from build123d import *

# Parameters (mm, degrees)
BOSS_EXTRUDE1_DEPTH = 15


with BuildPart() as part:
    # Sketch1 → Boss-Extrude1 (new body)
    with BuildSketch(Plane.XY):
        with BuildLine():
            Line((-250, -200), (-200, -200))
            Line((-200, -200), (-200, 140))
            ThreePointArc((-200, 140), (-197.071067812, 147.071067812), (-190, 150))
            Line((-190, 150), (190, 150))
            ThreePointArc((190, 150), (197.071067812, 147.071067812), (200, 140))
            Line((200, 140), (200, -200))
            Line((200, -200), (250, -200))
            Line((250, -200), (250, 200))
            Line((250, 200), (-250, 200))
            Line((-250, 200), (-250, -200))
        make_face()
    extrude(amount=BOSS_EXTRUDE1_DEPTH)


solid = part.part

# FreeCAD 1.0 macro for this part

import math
import FreeCAD as App
import Part
import Sketcher

V = App.Vector
Q = App.Units.Quantity

doc = App.newDocument("Part")
body = doc.addObject("PartDesign::Body", "Body")

# Sketch on XY plane
sketch1 = doc.addObject("Sketcher::SketchObject", "Sketch")
body.addObject(sketch1)
sketch1.AttachmentSupport = (doc.XY_Plane, [""])
sketch1.MapMode = "FlatFace"
sketch1.addGeometry(Part.LineSegment(V(-250, -200, 0), V(-200, -200, 0)), False)
sketch1.addGeometry(Part.LineSegment(V(-200, -200, 0), V(-200, 140, 0)), False)
sketch1.addGeometry(Part.ArcOfCircle(Part.Circle(V(-190, 140, 0), V(0, 0, 1), 10), math.radians(90), math.radians(180)), False)
sketch1.addGeometry(Part.LineSegment(V(-190, 150, 0), V(190, 150, 0)), False)
sketch1.addGeometry(Part.ArcOfCircle(Part.Circle(V(190, 140, 0), V(0, 0, 1), 10), math.radians(0), math.radians(90)), False)
sketch1.addGeometry(Part.LineSegment(V(200, 140, 0), V(200, -200, 0)), False)
sketch1.addGeometry(Part.LineSegment(V(200, -200, 0), V(250, -200, 0)), False)
sketch1.addGeometry(Part.LineSegment(V(250, -200, 0), V(250, 200, 0)), False)
sketch1.addGeometry(Part.LineSegment(V(250, 200, 0), V(-250, 200, 0)), False)
sketch1.addGeometry(Part.LineSegment(V(-250, 200, 0), V(-250, -200, 0)), False)
sketch1.addConstraint(Sketcher.Constraint("Coincident", 0, 2, 1, 1))
sketch1.addConstraint(Sketcher.Constraint("Tangent", 1, 2, 2, 2))
sketch1.addConstraint(Sketcher.Constraint("Tangent", 2, 1, 3, 1))
sketch1.addConstraint(Sketcher.Constraint("Tangent", 3, 2, 4, 2))
sketch1.addConstraint(Sketcher.Constraint("Tangent", 4, 1, 5, 1))
sketch1.addConstraint(Sketcher.Constraint("Coincident", 5, 2, 6, 1))
sketch1.addConstraint(Sketcher.Constraint("Coincident", 6, 2, 7, 1))
sketch1.addConstraint(Sketcher.Constraint("Coincident", 7, 2, 8, 1))
sketch1.addConstraint(Sketcher.Constraint("Coincident", 8, 2, 9, 1))
sketch1.addConstraint(Sketcher.Constraint("Coincident", 9, 2, 0, 1))
sketch1.addConstraint(Sketcher.Constraint("Horizontal", 0))
sketch1.addConstraint(Sketcher.Constraint("Vertical", 1))
sketch1.addConstraint(Sketcher.Constraint("Horizontal", 3))
sketch1.addConstraint(Sketcher.Constraint("Vertical", 5))
sketch1.addConstraint(Sketcher.Constraint("Horizontal", 6))
sketch1.addConstraint(Sketcher.Constraint("Vertical", 7))
sketch1.addConstraint(Sketcher.Constraint("Horizontal", 8))
sketch1.addConstraint(Sketcher.Constraint("Vertical", 9))
sketch1.addConstraint(Sketcher.Constraint("Equal", 2, 4))
sketch1.addConstraint(Sketcher.Constraint("Symmetric", 6, 2, 8, 2, -1, 1))
sketch1.addConstraint(Sketcher.Constraint("Symmetric", 0, 2, 5, 2, -2))
sketch1.addConstraint(Sketcher.Constraint("Radius", 2, Q("10 mm")))
sketch1.addConstraint(Sketcher.Constraint("DistanceX", 0, 1, 0, 2, Q("50 mm")))
sketch1.addConstraint(Sketcher.Constraint("DistanceX", 3, 1, 3, 2, Q("380 mm")))
sketch1.addConstraint(Sketcher.Constraint("DistanceY", 1, 1, 1, 2, Q("340 mm")))
sketch1.addConstraint(Sketcher.Constraint("DistanceY", 7, 1, 7, 2, Q("400 mm")))
pad1 = doc.addObject("PartDesign::Pad", "Pad")
body.addObject(pad1)
pad1.Profile = sketch1
pad1.Length = 15

doc.recompute()
